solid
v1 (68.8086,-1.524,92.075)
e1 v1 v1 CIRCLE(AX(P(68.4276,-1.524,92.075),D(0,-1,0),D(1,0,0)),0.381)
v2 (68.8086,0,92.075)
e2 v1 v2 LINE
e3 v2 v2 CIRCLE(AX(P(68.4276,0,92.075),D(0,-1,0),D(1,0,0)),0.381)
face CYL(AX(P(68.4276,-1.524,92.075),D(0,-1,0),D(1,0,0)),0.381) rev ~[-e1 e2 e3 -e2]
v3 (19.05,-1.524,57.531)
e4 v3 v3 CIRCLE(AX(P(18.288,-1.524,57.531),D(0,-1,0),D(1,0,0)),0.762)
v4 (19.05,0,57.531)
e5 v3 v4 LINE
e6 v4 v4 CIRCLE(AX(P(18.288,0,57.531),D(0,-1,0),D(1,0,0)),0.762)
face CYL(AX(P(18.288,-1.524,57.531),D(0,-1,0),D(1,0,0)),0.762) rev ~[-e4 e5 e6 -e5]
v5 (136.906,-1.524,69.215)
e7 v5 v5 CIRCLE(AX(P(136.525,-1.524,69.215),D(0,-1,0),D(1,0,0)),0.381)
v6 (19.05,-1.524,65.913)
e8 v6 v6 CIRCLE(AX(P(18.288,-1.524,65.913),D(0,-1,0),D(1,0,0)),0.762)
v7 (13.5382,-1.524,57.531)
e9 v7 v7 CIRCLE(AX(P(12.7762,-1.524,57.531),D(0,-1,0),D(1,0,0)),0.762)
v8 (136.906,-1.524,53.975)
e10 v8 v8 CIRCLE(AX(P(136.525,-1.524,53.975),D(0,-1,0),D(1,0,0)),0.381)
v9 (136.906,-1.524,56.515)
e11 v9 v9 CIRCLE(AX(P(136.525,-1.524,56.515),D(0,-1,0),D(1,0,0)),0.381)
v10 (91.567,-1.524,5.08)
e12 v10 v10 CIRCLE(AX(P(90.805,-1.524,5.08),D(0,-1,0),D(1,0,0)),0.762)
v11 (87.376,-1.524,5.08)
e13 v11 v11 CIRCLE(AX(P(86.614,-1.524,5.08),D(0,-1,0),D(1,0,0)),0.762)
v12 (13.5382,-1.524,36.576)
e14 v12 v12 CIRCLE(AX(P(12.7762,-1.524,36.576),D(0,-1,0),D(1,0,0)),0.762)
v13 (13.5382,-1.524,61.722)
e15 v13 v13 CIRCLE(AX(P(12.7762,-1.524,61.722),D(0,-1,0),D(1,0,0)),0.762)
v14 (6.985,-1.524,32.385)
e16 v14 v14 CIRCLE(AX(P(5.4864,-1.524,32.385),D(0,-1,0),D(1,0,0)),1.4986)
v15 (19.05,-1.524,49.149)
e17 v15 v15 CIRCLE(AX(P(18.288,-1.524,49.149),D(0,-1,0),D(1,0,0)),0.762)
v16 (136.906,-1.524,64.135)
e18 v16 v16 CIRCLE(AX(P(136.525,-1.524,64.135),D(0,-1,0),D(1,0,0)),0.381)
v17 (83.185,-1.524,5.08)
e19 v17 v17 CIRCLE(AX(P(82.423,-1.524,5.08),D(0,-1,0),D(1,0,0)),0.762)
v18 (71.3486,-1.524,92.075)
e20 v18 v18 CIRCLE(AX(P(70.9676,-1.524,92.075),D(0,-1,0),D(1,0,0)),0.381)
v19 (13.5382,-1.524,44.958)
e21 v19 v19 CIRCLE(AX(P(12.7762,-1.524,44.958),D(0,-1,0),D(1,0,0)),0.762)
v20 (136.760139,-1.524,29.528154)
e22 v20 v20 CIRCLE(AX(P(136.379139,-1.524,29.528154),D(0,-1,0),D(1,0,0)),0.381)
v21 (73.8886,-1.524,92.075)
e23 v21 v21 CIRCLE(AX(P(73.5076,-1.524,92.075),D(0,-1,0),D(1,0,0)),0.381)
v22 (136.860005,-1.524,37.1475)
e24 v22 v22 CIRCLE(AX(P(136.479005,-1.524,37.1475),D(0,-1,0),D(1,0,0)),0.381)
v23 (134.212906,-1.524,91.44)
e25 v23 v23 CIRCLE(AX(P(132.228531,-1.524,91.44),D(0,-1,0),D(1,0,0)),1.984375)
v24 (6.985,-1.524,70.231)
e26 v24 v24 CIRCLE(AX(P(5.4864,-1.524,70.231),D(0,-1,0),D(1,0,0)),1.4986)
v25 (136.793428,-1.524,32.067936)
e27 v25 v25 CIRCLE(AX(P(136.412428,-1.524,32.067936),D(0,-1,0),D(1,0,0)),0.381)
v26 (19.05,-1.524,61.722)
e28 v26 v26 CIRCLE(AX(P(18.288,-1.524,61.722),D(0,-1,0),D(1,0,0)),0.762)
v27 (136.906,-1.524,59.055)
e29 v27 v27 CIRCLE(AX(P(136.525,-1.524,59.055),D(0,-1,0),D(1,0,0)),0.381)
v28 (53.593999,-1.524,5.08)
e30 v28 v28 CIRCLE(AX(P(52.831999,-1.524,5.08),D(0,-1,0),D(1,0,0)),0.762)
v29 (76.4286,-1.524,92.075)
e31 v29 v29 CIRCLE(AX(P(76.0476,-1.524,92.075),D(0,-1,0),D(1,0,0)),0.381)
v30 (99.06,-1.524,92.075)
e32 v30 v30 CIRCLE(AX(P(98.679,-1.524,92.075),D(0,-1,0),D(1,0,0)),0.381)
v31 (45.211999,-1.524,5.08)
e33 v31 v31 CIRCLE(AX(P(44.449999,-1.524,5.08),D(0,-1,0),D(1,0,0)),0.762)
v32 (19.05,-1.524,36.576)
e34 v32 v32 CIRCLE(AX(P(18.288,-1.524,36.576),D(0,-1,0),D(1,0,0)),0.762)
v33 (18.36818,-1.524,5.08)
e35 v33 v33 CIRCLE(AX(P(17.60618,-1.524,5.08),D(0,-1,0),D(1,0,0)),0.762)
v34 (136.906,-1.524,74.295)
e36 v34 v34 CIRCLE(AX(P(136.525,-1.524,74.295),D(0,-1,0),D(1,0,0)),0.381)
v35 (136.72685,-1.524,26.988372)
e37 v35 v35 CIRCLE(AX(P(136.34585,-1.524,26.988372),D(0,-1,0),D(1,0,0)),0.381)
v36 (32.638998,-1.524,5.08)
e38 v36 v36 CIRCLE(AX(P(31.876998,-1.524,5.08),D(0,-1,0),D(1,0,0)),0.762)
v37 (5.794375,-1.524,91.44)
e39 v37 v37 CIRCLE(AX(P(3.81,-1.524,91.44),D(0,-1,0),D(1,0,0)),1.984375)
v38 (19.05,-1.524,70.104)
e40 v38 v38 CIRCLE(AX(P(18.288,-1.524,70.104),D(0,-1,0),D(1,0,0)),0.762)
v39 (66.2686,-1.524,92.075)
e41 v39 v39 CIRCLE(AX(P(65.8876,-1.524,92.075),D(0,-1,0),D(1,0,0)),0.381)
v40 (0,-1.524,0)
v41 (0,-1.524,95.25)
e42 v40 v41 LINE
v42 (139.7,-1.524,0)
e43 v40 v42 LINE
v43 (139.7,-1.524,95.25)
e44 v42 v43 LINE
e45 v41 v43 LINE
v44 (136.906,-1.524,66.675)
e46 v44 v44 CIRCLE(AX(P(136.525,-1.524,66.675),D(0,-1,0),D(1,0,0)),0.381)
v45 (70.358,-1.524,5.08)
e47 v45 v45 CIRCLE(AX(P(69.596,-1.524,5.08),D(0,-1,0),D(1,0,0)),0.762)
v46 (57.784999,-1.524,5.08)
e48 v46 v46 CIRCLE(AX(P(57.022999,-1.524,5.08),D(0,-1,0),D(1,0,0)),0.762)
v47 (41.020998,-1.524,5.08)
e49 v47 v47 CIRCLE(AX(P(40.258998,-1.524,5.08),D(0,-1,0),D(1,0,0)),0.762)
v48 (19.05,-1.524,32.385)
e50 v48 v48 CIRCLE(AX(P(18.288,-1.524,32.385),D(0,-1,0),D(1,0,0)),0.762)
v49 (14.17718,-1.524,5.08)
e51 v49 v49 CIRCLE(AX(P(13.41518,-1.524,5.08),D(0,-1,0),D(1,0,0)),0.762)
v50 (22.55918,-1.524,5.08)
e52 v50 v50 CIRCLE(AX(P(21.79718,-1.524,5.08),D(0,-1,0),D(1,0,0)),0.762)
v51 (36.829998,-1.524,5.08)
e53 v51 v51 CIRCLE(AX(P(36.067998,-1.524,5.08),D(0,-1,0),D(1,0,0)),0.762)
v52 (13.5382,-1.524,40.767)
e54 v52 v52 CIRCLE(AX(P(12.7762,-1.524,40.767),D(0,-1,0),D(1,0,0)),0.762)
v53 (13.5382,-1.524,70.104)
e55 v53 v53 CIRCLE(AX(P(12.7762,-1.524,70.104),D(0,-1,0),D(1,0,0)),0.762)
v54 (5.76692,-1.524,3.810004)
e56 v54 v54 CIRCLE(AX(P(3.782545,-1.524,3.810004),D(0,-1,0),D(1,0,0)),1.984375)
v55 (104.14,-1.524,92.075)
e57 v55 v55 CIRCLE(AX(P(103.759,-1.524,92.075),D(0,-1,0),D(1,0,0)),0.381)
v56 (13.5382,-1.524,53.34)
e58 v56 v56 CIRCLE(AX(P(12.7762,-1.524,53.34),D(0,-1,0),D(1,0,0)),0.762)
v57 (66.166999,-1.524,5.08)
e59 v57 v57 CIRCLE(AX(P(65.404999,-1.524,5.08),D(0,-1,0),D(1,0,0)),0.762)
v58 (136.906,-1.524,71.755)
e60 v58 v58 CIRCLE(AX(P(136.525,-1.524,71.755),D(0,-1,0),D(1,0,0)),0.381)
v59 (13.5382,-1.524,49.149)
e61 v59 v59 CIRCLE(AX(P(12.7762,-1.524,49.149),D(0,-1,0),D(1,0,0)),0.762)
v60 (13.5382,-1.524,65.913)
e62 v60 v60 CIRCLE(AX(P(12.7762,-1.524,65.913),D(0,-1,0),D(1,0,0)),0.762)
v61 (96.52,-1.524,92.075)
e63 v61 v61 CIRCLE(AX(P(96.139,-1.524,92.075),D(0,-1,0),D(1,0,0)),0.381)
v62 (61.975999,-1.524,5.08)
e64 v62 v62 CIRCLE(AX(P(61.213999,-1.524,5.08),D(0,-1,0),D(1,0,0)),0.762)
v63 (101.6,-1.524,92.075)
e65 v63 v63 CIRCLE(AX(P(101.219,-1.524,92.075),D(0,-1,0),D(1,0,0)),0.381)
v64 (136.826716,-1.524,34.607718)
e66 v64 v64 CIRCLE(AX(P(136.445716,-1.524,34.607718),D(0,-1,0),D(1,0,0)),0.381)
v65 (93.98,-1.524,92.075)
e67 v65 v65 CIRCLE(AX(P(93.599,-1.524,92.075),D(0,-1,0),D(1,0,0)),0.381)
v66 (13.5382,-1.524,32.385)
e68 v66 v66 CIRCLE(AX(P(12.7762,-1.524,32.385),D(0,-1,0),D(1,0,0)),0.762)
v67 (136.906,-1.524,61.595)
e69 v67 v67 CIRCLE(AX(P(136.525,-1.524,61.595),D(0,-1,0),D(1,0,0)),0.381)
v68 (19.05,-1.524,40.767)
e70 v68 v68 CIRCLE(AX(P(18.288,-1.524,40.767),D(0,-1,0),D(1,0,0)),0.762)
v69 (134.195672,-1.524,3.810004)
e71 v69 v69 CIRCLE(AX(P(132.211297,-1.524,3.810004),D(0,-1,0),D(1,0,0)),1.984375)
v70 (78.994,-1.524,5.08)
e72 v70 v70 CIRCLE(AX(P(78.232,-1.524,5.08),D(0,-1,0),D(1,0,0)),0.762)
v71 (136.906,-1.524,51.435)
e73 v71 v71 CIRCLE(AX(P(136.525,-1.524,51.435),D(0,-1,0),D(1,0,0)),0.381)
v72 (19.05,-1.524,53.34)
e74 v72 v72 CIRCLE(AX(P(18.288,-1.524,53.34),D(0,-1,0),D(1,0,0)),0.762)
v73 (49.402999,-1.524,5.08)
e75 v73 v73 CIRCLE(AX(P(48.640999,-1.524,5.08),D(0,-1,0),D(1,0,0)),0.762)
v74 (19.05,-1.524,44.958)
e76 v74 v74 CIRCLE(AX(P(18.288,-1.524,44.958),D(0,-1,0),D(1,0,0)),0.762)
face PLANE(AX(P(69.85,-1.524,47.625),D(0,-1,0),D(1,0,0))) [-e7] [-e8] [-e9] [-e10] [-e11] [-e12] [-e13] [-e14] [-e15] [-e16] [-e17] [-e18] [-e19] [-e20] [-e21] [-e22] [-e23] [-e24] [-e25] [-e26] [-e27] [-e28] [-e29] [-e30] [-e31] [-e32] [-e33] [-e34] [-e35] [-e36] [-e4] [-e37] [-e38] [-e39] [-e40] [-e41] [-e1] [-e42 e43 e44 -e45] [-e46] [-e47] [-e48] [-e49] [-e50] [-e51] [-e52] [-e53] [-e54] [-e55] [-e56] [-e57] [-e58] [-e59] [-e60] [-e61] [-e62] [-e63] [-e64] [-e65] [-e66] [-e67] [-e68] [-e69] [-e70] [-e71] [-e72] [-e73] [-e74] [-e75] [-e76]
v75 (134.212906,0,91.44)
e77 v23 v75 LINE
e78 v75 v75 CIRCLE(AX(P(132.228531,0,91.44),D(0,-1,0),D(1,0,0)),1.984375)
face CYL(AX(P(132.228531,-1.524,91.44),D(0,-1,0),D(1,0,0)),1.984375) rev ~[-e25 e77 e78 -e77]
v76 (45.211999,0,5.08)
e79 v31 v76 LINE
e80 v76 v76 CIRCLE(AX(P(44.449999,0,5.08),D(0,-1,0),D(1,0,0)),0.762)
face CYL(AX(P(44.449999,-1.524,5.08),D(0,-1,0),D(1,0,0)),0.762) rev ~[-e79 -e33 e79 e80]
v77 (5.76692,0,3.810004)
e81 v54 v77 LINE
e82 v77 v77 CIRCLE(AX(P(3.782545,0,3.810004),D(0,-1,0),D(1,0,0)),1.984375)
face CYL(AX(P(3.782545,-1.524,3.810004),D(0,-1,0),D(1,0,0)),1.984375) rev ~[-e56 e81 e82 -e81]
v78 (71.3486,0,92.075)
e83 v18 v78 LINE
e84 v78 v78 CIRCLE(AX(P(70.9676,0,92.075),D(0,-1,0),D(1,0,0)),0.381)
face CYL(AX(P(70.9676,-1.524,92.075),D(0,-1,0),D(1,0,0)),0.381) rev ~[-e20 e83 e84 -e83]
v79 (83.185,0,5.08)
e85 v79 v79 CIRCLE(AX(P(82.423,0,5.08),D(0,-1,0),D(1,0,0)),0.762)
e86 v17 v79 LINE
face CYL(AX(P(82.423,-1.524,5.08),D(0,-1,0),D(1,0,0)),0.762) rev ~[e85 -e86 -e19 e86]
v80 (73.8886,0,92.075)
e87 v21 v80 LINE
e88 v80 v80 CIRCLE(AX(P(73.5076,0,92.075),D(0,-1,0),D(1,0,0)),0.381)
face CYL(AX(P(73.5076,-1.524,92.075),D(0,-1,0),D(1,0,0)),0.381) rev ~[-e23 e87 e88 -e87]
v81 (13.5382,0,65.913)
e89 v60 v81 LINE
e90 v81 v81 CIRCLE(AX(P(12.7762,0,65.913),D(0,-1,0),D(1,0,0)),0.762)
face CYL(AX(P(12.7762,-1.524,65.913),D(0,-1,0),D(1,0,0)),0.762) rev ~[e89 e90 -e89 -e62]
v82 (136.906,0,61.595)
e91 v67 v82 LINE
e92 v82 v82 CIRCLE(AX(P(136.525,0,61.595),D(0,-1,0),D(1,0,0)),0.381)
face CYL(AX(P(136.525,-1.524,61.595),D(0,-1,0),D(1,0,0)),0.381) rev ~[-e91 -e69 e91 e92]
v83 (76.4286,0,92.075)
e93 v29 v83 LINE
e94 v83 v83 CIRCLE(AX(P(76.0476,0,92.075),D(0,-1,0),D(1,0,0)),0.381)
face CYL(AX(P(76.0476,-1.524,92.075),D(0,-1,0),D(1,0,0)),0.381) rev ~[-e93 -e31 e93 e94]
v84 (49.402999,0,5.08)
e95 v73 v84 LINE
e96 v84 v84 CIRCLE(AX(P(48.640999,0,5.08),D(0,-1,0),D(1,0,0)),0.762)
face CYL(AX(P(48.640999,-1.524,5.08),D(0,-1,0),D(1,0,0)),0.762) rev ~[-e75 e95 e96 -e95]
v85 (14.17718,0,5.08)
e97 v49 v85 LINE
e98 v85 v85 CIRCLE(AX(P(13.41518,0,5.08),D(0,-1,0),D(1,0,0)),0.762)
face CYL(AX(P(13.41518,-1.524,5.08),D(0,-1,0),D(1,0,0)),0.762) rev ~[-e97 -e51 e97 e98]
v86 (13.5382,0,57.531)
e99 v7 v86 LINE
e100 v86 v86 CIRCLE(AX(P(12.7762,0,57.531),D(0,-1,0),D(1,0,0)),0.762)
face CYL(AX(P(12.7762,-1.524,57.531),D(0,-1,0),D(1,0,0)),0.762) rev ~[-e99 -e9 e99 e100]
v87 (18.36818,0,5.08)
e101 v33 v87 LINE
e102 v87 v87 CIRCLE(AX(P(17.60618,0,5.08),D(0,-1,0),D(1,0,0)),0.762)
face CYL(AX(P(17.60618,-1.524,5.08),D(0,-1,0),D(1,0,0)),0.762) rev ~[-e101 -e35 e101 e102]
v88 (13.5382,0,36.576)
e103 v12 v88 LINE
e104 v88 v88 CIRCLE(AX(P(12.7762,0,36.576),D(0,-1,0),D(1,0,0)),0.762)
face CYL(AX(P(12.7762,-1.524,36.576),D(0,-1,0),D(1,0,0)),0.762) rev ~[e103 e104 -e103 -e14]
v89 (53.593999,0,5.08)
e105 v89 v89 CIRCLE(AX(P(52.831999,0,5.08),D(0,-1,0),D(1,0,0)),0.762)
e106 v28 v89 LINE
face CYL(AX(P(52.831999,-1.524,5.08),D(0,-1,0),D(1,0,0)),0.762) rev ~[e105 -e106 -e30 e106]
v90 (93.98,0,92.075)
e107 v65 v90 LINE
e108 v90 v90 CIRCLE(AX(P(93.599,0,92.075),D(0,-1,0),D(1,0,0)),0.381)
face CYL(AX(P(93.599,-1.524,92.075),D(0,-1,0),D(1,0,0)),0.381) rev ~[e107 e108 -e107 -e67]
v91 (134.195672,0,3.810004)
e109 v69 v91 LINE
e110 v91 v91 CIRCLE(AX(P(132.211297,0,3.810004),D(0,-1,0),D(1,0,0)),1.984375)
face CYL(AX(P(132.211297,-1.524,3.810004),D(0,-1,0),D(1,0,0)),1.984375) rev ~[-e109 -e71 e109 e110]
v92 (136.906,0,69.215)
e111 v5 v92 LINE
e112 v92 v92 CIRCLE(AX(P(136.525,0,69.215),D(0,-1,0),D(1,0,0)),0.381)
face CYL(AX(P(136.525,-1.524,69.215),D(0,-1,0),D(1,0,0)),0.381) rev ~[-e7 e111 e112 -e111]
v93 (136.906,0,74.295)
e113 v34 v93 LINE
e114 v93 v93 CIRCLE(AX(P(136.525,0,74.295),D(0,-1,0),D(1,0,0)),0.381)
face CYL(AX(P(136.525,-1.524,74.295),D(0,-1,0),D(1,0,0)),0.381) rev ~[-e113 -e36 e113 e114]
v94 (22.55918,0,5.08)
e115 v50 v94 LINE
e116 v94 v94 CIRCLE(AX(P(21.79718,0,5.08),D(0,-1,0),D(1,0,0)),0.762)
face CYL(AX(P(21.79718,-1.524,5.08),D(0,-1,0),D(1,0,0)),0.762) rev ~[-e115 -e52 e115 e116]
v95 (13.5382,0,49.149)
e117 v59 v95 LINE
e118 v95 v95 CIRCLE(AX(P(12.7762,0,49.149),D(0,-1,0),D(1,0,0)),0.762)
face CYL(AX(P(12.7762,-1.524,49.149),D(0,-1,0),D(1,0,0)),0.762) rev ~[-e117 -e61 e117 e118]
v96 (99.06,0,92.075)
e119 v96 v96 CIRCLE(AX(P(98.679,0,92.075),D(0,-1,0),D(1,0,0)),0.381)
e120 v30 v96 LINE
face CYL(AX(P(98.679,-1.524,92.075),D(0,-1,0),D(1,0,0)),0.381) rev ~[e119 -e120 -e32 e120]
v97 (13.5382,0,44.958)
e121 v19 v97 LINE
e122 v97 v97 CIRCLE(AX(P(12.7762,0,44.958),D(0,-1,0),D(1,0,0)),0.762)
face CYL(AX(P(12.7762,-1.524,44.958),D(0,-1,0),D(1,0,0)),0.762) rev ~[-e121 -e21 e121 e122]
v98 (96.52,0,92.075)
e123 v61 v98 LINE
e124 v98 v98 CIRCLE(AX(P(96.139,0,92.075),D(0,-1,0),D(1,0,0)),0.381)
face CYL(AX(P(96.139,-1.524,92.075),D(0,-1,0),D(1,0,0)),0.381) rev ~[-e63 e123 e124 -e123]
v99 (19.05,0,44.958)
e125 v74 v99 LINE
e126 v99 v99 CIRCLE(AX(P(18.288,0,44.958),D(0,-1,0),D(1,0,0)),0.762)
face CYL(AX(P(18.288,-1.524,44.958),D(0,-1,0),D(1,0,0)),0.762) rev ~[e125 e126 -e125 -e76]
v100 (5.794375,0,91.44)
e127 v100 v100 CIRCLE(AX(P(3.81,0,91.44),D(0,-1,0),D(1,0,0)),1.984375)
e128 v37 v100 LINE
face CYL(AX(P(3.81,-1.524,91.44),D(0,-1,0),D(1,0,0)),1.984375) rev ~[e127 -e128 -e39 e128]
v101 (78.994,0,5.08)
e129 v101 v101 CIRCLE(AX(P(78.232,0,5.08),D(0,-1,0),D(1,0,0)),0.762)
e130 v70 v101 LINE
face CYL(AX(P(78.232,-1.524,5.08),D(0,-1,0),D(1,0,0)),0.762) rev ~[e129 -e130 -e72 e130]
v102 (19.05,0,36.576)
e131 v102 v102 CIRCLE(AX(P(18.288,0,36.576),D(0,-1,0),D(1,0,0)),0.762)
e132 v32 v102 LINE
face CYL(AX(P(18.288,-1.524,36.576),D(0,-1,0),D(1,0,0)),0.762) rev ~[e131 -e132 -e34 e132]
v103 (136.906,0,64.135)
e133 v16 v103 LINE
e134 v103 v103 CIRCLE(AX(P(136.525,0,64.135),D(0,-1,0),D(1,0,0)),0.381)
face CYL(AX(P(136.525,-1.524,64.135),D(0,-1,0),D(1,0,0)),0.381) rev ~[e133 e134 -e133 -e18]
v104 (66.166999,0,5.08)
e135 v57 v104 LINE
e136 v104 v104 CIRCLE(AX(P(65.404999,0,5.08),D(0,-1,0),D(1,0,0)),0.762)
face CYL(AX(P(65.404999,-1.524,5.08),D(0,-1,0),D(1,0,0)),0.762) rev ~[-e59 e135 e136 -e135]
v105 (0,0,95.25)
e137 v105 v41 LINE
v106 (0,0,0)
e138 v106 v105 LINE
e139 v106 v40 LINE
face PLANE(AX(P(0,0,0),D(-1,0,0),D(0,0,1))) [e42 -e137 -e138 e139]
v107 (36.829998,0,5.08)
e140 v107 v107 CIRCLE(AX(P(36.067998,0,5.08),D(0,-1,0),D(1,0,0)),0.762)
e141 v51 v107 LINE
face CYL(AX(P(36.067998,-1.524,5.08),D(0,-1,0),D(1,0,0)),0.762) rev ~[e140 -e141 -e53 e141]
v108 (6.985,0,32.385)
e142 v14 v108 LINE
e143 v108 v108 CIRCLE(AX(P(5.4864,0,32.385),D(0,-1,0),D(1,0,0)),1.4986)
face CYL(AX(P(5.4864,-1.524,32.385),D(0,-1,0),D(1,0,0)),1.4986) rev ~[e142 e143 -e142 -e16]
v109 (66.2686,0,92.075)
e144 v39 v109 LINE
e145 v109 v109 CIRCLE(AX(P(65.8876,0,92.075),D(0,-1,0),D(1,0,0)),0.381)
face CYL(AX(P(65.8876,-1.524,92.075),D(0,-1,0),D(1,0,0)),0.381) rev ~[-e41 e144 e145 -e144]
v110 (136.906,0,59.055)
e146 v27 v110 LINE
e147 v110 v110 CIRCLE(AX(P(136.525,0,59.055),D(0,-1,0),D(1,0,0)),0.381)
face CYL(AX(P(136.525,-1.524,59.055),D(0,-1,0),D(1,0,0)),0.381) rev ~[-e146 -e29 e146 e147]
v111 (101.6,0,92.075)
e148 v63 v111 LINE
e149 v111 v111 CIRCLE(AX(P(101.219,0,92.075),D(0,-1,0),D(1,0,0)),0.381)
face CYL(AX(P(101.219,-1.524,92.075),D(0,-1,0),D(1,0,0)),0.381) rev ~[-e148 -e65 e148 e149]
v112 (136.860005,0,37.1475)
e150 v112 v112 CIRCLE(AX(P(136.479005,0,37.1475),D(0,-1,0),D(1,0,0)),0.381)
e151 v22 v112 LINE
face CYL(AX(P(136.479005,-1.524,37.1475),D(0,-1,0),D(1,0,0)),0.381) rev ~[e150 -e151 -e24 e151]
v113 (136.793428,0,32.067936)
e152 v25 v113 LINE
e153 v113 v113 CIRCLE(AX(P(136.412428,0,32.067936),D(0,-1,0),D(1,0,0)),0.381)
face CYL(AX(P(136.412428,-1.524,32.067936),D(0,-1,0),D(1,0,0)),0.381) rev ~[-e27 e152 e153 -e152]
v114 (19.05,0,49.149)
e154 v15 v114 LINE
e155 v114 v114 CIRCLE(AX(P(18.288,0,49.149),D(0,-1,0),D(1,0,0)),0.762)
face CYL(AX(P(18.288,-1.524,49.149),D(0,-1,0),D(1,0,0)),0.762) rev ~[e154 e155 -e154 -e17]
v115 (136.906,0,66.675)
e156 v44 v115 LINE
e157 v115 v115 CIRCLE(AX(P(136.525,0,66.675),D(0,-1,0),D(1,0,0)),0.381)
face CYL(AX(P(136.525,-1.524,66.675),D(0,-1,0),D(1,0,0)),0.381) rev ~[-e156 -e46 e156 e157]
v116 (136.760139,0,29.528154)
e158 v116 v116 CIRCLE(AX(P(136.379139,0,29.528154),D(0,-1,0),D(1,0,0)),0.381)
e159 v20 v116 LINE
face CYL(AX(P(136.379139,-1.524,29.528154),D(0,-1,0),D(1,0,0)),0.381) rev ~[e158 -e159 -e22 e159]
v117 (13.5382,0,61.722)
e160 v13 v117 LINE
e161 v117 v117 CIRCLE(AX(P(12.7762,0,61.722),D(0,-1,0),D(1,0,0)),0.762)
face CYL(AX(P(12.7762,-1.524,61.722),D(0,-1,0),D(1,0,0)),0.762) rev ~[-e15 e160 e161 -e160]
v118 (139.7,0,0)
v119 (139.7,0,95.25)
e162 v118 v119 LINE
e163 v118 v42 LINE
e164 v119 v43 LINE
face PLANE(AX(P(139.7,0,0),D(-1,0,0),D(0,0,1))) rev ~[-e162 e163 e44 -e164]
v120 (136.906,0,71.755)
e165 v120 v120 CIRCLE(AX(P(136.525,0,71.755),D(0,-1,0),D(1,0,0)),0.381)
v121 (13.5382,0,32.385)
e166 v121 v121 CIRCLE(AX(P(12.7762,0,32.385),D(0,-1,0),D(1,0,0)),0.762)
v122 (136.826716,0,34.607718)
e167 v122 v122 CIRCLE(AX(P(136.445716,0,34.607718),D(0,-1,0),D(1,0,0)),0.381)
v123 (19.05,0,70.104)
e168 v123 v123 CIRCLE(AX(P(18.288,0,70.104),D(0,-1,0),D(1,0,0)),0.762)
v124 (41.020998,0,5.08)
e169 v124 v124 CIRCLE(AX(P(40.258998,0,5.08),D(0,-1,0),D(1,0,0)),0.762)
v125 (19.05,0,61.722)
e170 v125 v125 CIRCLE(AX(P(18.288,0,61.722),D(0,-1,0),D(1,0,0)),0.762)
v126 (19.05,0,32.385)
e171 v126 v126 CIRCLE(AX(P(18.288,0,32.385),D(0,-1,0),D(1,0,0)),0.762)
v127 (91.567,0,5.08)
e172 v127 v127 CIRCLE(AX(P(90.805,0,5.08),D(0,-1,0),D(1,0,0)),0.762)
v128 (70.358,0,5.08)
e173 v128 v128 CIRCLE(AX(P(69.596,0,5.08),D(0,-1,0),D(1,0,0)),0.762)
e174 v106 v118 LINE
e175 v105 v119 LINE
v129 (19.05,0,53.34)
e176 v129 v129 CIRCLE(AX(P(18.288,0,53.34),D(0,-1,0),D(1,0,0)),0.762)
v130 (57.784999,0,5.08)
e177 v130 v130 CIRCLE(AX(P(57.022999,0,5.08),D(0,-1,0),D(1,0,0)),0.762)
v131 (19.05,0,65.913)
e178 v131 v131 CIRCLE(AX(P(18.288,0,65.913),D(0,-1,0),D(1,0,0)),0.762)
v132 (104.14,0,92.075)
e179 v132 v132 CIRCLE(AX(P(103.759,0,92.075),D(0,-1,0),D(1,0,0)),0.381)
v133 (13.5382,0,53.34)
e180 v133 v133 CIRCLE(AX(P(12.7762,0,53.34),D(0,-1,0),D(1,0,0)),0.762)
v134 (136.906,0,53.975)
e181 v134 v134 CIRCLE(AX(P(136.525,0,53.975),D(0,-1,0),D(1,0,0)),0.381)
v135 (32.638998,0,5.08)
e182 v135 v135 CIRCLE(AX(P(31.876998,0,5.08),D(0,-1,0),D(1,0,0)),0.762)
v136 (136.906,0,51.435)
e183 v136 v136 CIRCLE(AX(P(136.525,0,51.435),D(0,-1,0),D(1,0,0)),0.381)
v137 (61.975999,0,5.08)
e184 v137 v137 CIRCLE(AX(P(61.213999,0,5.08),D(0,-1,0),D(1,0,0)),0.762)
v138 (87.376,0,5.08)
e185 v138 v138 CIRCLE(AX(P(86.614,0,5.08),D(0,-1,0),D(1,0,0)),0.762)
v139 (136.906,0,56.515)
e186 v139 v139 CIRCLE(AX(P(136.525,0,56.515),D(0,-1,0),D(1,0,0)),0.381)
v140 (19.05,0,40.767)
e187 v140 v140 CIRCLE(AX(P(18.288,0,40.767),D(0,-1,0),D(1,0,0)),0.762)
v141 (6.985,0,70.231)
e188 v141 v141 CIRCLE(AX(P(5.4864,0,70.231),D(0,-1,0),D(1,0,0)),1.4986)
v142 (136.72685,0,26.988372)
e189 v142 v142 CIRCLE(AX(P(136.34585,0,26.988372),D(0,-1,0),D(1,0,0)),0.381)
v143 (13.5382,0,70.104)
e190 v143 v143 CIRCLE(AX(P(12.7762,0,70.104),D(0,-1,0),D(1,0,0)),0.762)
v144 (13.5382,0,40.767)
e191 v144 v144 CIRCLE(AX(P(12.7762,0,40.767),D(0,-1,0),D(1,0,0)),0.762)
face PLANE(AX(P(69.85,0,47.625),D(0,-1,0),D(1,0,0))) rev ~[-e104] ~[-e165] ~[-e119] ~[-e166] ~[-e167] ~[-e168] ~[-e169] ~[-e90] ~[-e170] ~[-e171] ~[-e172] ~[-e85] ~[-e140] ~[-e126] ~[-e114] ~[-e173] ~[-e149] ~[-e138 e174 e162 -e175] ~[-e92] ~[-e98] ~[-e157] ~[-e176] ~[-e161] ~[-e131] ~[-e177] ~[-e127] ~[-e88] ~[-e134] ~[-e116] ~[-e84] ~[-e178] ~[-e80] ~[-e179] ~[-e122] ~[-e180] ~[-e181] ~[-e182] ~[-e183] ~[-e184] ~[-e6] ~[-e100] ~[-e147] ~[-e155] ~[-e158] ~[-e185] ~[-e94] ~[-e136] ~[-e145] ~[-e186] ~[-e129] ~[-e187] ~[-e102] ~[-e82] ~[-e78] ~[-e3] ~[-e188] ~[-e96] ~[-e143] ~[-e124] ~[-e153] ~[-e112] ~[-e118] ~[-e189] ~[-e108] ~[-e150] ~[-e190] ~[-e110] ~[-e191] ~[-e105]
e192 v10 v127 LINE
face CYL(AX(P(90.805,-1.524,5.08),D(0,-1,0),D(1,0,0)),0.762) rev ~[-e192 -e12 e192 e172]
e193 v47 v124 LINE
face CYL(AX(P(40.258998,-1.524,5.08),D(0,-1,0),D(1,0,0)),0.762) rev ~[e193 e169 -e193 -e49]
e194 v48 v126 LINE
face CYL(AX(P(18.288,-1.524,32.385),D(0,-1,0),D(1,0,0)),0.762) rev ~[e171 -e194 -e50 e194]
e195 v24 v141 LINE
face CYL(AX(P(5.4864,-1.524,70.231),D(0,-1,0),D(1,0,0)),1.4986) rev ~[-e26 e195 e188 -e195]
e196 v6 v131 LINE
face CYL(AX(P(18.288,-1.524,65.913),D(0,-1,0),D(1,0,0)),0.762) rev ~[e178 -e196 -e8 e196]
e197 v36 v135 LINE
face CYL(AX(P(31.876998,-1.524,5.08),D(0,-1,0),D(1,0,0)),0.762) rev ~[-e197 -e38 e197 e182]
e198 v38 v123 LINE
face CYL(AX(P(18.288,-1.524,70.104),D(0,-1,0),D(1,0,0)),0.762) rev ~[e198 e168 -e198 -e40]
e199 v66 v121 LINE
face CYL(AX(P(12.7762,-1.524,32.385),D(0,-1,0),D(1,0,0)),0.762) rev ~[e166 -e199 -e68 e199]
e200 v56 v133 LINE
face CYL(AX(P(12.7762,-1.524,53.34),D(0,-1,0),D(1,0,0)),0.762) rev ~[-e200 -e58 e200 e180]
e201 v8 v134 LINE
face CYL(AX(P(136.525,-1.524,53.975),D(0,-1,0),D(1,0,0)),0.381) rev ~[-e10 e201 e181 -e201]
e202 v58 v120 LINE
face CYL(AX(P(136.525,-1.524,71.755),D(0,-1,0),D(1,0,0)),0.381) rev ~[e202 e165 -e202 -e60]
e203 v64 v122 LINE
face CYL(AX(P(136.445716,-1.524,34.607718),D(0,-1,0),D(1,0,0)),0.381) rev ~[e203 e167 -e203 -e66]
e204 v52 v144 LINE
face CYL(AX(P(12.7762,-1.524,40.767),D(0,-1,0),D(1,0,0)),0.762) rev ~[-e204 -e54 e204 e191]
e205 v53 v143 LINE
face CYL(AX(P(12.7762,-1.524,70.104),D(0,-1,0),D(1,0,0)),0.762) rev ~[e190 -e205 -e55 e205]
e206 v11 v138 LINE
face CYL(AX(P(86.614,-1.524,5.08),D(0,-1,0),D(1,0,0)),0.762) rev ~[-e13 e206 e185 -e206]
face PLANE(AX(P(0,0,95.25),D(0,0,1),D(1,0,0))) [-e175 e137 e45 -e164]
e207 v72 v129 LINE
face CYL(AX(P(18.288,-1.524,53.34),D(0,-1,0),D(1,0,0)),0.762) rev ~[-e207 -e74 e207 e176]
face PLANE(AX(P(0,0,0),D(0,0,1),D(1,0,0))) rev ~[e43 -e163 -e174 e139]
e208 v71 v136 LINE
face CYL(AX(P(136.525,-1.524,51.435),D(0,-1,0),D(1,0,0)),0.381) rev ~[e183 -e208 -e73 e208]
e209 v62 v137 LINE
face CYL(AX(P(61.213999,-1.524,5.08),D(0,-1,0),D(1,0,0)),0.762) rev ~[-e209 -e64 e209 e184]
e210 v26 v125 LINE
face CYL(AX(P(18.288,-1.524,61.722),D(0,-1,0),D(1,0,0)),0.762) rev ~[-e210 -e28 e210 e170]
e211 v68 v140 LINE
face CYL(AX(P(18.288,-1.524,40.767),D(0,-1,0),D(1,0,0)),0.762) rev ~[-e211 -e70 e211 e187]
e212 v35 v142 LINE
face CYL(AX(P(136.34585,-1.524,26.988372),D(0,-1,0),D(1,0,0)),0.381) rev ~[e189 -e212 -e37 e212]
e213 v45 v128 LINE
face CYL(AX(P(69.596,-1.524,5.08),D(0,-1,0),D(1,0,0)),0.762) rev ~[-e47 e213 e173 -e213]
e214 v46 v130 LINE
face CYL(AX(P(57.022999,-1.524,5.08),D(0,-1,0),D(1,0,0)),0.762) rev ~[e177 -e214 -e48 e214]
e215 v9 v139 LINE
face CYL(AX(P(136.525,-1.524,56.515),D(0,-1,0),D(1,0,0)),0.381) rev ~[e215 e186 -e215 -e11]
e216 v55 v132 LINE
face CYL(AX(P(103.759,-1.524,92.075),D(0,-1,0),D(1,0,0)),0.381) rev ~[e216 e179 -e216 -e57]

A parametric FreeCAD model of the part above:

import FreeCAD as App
import Part
import Sketcher
Q = App.Units.Quantity


def add_polygon(sketch, points):
    """Adds a closed chain of lines whose ends are joined by coincident constraints."""
    first, n = sketch.GeometryCount, len(points)
    for a, b in zip(points, points[1:] + points[:1]):
        sketch.addGeometry(Part.LineSegment(App.Vector(*a, 0), App.Vector(*b, 0)), False)
    for i in range(n):
        sketch.addConstraint(Sketcher.Constraint("Coincident", first + i, 2, first + (i + 1) % n, 1))

doc = App.newDocument("Part")
params = doc.addObject("Spreadsheet::Sheet", "Params")
for row, (alias, value) in enumerate([
    ("sketch1_width", "5.5 in"),
    ("sketch1_height", "3.75 in"),
    ("pad1_length", "0.06 in"),
    ("sketch2_diameter", "0.15625 in"),
    ("pocket1_length", "1 in"),
    ("sketch3_diameter", "0.03 in"),
    ("sketch3_diameter2", "0.06 in"),
    ("sketch3_diameter3", "0.118 in"),
], start=1):
    params.set(f"A{row}", alias)
    params.set(f"B{row}", "=" + value)
    params.setAlias(f"B{row}", alias)

body = doc.addObject("PartDesign::Body", "Body")

sketch1 = doc.addObject("Sketcher::SketchObject", "Sketch")
body.addObject(sketch1)
sketch1.AttachmentSupport = (doc.XZ_Plane, [""])
sketch1.MapMode = "FlatFace"
add_polygon(sketch1, [(0, 95), (0, 0), (140, 0), (140, 95)])
sketch1.addConstraint(Sketcher.Constraint("Vertical", 0))
sketch1.addConstraint(Sketcher.Constraint("Horizontal", 1))
sketch1.addConstraint(Sketcher.Constraint("Vertical", 2))
sketch1.addConstraint(Sketcher.Constraint("Horizontal", 3))
sketch1.addConstraint(Sketcher.Constraint("Coincident", 0, 2, -1, 1))
sketch1.addConstraint(Sketcher.Constraint("DistanceX", 1, 1, 1, 2, Q("5.5 in")))
sketch1.addConstraint(Sketcher.Constraint("DistanceY", 0, 2, 0, 1, Q("3.75 in")))
sketch1.setExpression("Constraints[9]", "Params.sketch1_width")
sketch1.setExpression("Constraints[10]", "Params.sketch1_height")
pad1 = doc.addObject("PartDesign::Pad", "Pad")
body.addObject(pad1)
pad1.Profile = sketch1
pad1.setExpression("Length", "Params.pad1_length")

sketch2 = doc.addObject("Sketcher::SketchObject", "Sketch001")
body.addObject(sketch2)
sketch2.AttachmentSupport = (doc.XZ_Plane, [""])
sketch2.MapMode = "FlatFace"
sketch2.AttachmentOffset = App.Placement(App.Vector(0, 0, 0.06 * 25.4), App.Rotation())
sketch2.addGeometry(Part.Circle(App.Vector(3.8, 91.4, 0), App.Vector(0, 0, 1), 2), False)
sketch2.addGeometry(Part.Circle(App.Vector(132.2, 91.4, 0), App.Vector(0, 0, 1), 2), False)
sketch2.addGeometry(Part.Circle(App.Vector(3.8, 3.8, 0), App.Vector(0, 0, 1), 2), False)
sketch2.addGeometry(Part.Circle(App.Vector(132.2, 3.8, 0), App.Vector(0, 0, 1), 2), False)
sketch2.addConstraint(Sketcher.Constraint("Equal", 0, 1))
sketch2.addConstraint(Sketcher.Constraint("Equal", 1, 2))
sketch2.addConstraint(Sketcher.Constraint("Equal", 2, 3))
sketch2.addConstraint(Sketcher.Constraint("Horizontal", 0, 3, 1, 3))
sketch2.addConstraint(Sketcher.Constraint("Horizontal", 2, 3, 3, 3))
sketch2.addConstraint(Sketcher.Constraint("Diameter", 0, Q("0.15625 in")))
sketch2.addConstraint(Sketcher.Constraint("DistanceY", -1, 1, 0, 3, Q("3.6 in")))
sketch2.addConstraint(Sketcher.Constraint("DistanceX", -1, 1, 0, 3, Q("0.15 in")))
sketch2.addConstraint(Sketcher.Constraint("DistanceY", -1, 1, 2, 3, Q("0.1500002 in")))
sketch2.addConstraint(Sketcher.Constraint("DistanceX", -1, 1, 1, 3, Q("132.228531 mm")))
sketch2.addConstraint(Sketcher.Constraint("DistanceX", 2, 3, 3, 3, Q("128.428752 mm")))
sketch2.addConstraint(Sketcher.Constraint("DistanceX", -1, 1, 2, 3, Q("3.782545 mm")))
sketch2.setExpression("Constraints[5]", "Params.sketch2_diameter")
pocket1 = doc.addObject("PartDesign::Pocket", "Pocket")
body.addObject(pocket1)
pocket1.Profile = sketch2
pocket1.setExpression("Length", "Params.pocket1_length")

sketch3 = doc.addObject("Sketcher::SketchObject", "Sketch002")
body.addObject(sketch3)
sketch3.AttachmentSupport = (doc.XZ_Plane, [""])
sketch3.MapMode = "FlatFace"
sketch3.AttachmentOffset = App.Placement(App.Vector(0, 0, 0.06 * 25.4), App.Rotation())
sketch3.addGeometry(Part.Circle(App.Vector(136.53, 74.3, 0), App.Vector(0, 0, 1), 0.38), False)
sketch3.addGeometry(Part.Circle(App.Vector(136.53, 71.75, 0), App.Vector(0, 0, 1), 0.38), False)
sketch3.addGeometry(Part.Circle(App.Vector(136.53, 69.22, 0), App.Vector(0, 0, 1), 0.38), False)
sketch3.addGeometry(Part.Circle(App.Vector(136.53, 66.67, 0), App.Vector(0, 0, 1), 0.38), False)
sketch3.addGeometry(Part.Circle(App.Vector(136.53, 64.14, 0), App.Vector(0, 0, 1), 0.38), False)
sketch3.addGeometry(Part.Circle(App.Vector(136.53, 61.59, 0), App.Vector(0, 0, 1), 0.38), False)
sketch3.addGeometry(Part.Circle(App.Vector(136.53, 59.05, 0), App.Vector(0, 0, 1), 0.38), False)
sketch3.addGeometry(Part.Circle(App.Vector(136.53, 56.52, 0), App.Vector(0, 0, 1), 0.38), False)
sketch3.addGeometry(Part.Circle(App.Vector(136.53, 53.98, 0), App.Vector(0, 0, 1), 0.38), False)
sketch3.addGeometry(Part.Circle(App.Vector(136.53, 51.44, 0), App.Vector(0, 0, 1), 0.38), False)
sketch3.addGeometry(Part.Circle(App.Vector(136.48, 37.15, 0), App.Vector(0, 0, 1), 0.38), False)
sketch3.addGeometry(Part.Circle(App.Vector(136.45, 34.61, 0), App.Vector(0, 0, 1), 0.38), False)
sketch3.addGeometry(Part.Circle(App.Vector(136.41, 32.07, 0), App.Vector(0, 0, 1), 0.38), False)
sketch3.addGeometry(Part.Circle(App.Vector(136.38, 29.53, 0), App.Vector(0, 0, 1), 0.38), False)
sketch3.addGeometry(Part.Circle(App.Vector(136.35, 26.99, 0), App.Vector(0, 0, 1), 0.38), False)
sketch3.addGeometry(Part.Circle(App.Vector(103.76, 92.08, 0), App.Vector(0, 0, 1), 0.38), False)
sketch3.addGeometry(Part.Circle(App.Vector(101.22, 92.08, 0), App.Vector(0, 0, 1), 0.38), False)
sketch3.addGeometry(Part.Circle(App.Vector(98.68, 92.08, 0), App.Vector(0, 0, 1), 0.38), False)
sketch3.addGeometry(Part.Circle(App.Vector(96.14, 92.08, 0), App.Vector(0, 0, 1), 0.38), False)
sketch3.addGeometry(Part.Circle(App.Vector(93.6, 92.08, 0), App.Vector(0, 0, 1), 0.38), False)
sketch3.addGeometry(Part.Circle(App.Vector(76.05, 92.08, 0), App.Vector(0, 0, 1), 0.38), False)
sketch3.addGeometry(Part.Circle(App.Vector(73.51, 92.08, 0), App.Vector(0, 0, 1), 0.38), False)
sketch3.addGeometry(Part.Circle(App.Vector(70.97, 92.08, 0), App.Vector(0, 0, 1), 0.38), False)
sketch3.addGeometry(Part.Circle(App.Vector(68.43, 92.08, 0), App.Vector(0, 0, 1), 0.38), False)
sketch3.addGeometry(Part.Circle(App.Vector(65.89, 92.08, 0), App.Vector(0, 0, 1), 0.38), False)
sketch3.addGeometry(Part.Circle(App.Vector(90.81, 5.08, 0), App.Vector(0, 0, 1), 0.76), False)
sketch3.addGeometry(Part.Circle(App.Vector(86.61, 5.08, 0), App.Vector(0, 0, 1), 0.76), False)
sketch3.addGeometry(Part.Circle(App.Vector(82.42, 5.08, 0), App.Vector(0, 0, 1), 0.76), False)
sketch3.addGeometry(Part.Circle(App.Vector(78.23, 5.08, 0), App.Vector(0, 0, 1), 0.76), False)
sketch3.addGeometry(Part.Circle(App.Vector(69.6, 5.08, 0), App.Vector(0, 0, 1), 0.76), False)
sketch3.addGeometry(Part.Circle(App.Vector(65.4, 5.08, 0), App.Vector(0, 0, 1), 0.76), False)
sketch3.addGeometry(Part.Circle(App.Vector(61.21, 5.08, 0), App.Vector(0, 0, 1), 0.76), False)
sketch3.addGeometry(Part.Circle(App.Vector(57.02, 5.08, 0), App.Vector(0, 0, 1), 0.76), False)
sketch3.addGeometry(Part.Circle(App.Vector(52.83, 5.08, 0), App.Vector(0, 0, 1), 0.76), False)
sketch3.addGeometry(Part.Circle(App.Vector(48.64, 5.08, 0), App.Vector(0, 0, 1), 0.76), False)
sketch3.addGeometry(Part.Circle(App.Vector(44.45, 5.08, 0), App.Vector(0, 0, 1), 0.76), False)
sketch3.addGeometry(Part.Circle(App.Vector(40.26, 5.08, 0), App.Vector(0, 0, 1), 0.76), False)
sketch3.addGeometry(Part.Circle(App.Vector(36.07, 5.08, 0), App.Vector(0, 0, 1), 0.76), False)
sketch3.addGeometry(Part.Circle(App.Vector(31.88, 5.08, 0), App.Vector(0, 0, 1), 0.76), False)
sketch3.addGeometry(Part.Circle(App.Vector(21.8, 5.08, 0), App.Vector(0, 0, 1), 0.76), False)
sketch3.addGeometry(Part.Circle(App.Vector(17.61, 5.08, 0), App.Vector(0, 0, 1), 0.76), False)
sketch3.addGeometry(Part.Circle(App.Vector(13.42, 5.08, 0), App.Vector(0, 0, 1), 0.76), False)
sketch3.addGeometry(Part.Circle(App.Vector(18.29, 32.38, 0), App.Vector(0, 0, 1), 0.76), False)
sketch3.addGeometry(Part.Circle(App.Vector(18.29, 36.58, 0), App.Vector(0, 0, 1), 0.76), False)
sketch3.addGeometry(Part.Circle(App.Vector(18.29, 40.77, 0), App.Vector(0, 0, 1), 0.76), False)
sketch3.addGeometry(Part.Circle(App.Vector(18.29, 44.96, 0), App.Vector(0, 0, 1), 0.76), False)
sketch3.addGeometry(Part.Circle(App.Vector(18.29, 49.15, 0), App.Vector(0, 0, 1), 0.76), False)
sketch3.addGeometry(Part.Circle(App.Vector(18.29, 53.34, 0), App.Vector(0, 0, 1), 0.76), False)
sketch3.addGeometry(Part.Circle(App.Vector(18.29, 57.53, 0), App.Vector(0, 0, 1), 0.76), False)
sketch3.addGeometry(Part.Circle(App.Vector(18.29, 61.72, 0), App.Vector(0, 0, 1), 0.76), False)
sketch3.addGeometry(Part.Circle(App.Vector(18.29, 65.91, 0), App.Vector(0, 0, 1), 0.76), False)
sketch3.addGeometry(Part.Circle(App.Vector(18.29, 70.1, 0), App.Vector(0, 0, 1), 0.76), False)
sketch3.addGeometry(Part.Circle(App.Vector(12.78, 32.38, 0), App.Vector(0, 0, 1), 0.76), False)
sketch3.addGeometry(Part.Circle(App.Vector(12.78, 36.58, 0), App.Vector(0, 0, 1), 0.76), False)
sketch3.addGeometry(Part.Circle(App.Vector(12.78, 40.77, 0), App.Vector(0, 0, 1), 0.76), False)
sketch3.addGeometry(Part.Circle(App.Vector(12.78, 44.96, 0), App.Vector(0, 0, 1), 0.76), False)
sketch3.addGeometry(Part.Circle(App.Vector(12.78, 49.15, 0), App.Vector(0, 0, 1), 0.76), False)
sketch3.addGeometry(Part.Circle(App.Vector(12.78, 53.34, 0), App.Vector(0, 0, 1), 0.76), False)
sketch3.addGeometry(Part.Circle(App.Vector(12.78, 57.53, 0), App.Vector(0, 0, 1), 0.76), False)
sketch3.addGeometry(Part.Circle(App.Vector(12.78, 61.72, 0), App.Vector(0, 0, 1), 0.76), False)
sketch3.addGeometry(Part.Circle(App.Vector(12.78, 65.91, 0), App.Vector(0, 0, 1), 0.76), False)
sketch3.addGeometry(Part.Circle(App.Vector(12.78, 70.1, 0), App.Vector(0, 0, 1), 0.76), False)
sketch3.addGeometry(Part.Circle(App.Vector(5.49, 32.38, 0), App.Vector(0, 0, 1), 1.5), False)
sketch3.addGeometry(Part.Circle(App.Vector(5.49, 70.23, 0), App.Vector(0, 0, 1), 1.5), False)
sketch3.addConstraint(Sketcher.Constraint("Equal", 0, 1))
sketch3.addConstraint(Sketcher.Constraint("Equal", 1, 2))
sketch3.addConstraint(Sketcher.Constraint("Equal", 2, 3))
sketch3.addConstraint(Sketcher.Constraint("Equal", 3, 4))
sketch3.addConstraint(Sketcher.Constraint("Equal", 4, 5))
sketch3.addConstraint(Sketcher.Constraint("Equal", 5, 6))
sketch3.addConstraint(Sketcher.Constraint("Equal", 6, 7))
sketch3.addConstraint(Sketcher.Constraint("Equal", 7, 8))
sketch3.addConstraint(Sketcher.Constraint("Equal", 8, 9))
sketch3.addConstraint(Sketcher.Constraint("Equal", 9, 10))
sketch3.addConstraint(Sketcher.Constraint("Equal", 10, 11))
sketch3.addConstraint(Sketcher.Constraint("Equal", 11, 12))
sketch3.addConstraint(Sketcher.Constraint("Equal", 12, 13))
sketch3.addConstraint(Sketcher.Constraint("Equal", 13, 14))
sketch3.addConstraint(Sketcher.Constraint("Equal", 14, 15))
sketch3.addConstraint(Sketcher.Constraint("Equal", 15, 16))
sketch3.addConstraint(Sketcher.Constraint("Equal", 16, 17))
sketch3.addConstraint(Sketcher.Constraint("Equal", 17, 18))
sketch3.addConstraint(Sketcher.Constraint("Equal", 18, 19))
sketch3.addConstraint(Sketcher.Constraint("Equal", 19, 20))
sketch3.addConstraint(Sketcher.Constraint("Equal", 20, 21))
sketch3.addConstraint(Sketcher.Constraint("Equal", 21, 22))
sketch3.addConstraint(Sketcher.Constraint("Equal", 22, 23))
sketch3.addConstraint(Sketcher.Constraint("Equal", 23, 24))
sketch3.addConstraint(Sketcher.Constraint("Equal", 25, 26))
sketch3.addConstraint(Sketcher.Constraint("Equal", 26, 27))
sketch3.addConstraint(Sketcher.Constraint("Equal", 27, 28))
sketch3.addConstraint(Sketcher.Constraint("Equal", 28, 29))
sketch3.addConstraint(Sketcher.Constraint("Equal", 29, 30))
sketch3.addConstraint(Sketcher.Constraint("Equal", 30, 31))
sketch3.addConstraint(Sketcher.Constraint("Equal", 31, 32))
sketch3.addConstraint(Sketcher.Constraint("Equal", 32, 33))
sketch3.addConstraint(Sketcher.Constraint("Equal", 33, 34))
sketch3.addConstraint(Sketcher.Constraint("Equal", 34, 35))
sketch3.addConstraint(Sketcher.Constraint("Equal", 35, 36))
sketch3.addConstraint(Sketcher.Constraint("Equal", 36, 37))
sketch3.addConstraint(Sketcher.Constraint("Equal", 37, 38))
sketch3.addConstraint(Sketcher.Constraint("Equal", 38, 39))
sketch3.addConstraint(Sketcher.Constraint("Equal", 39, 40))
sketch3.addConstraint(Sketcher.Constraint("Equal", 40, 41))
sketch3.addConstraint(Sketcher.Constraint("Equal", 41, 42))
sketch3.addConstraint(Sketcher.Constraint("Equal", 42, 43))
sketch3.addConstraint(Sketcher.Constraint("Equal", 43, 44))
sketch3.addConstraint(Sketcher.Constraint("Equal", 44, 45))
sketch3.addConstraint(Sketcher.Constraint("Equal", 45, 46))
sketch3.addConstraint(Sketcher.Constraint("Equal", 46, 47))
sketch3.addConstraint(Sketcher.Constraint("Equal", 47, 48))
sketch3.addConstraint(Sketcher.Constraint("Equal", 48, 49))
sketch3.addConstraint(Sketcher.Constraint("Equal", 49, 50))
sketch3.addConstraint(Sketcher.Constraint("Equal", 50, 51))
sketch3.addConstraint(Sketcher.Constraint("Equal", 51, 52))
sketch3.addConstraint(Sketcher.Constraint("Equal", 52, 53))
sketch3.addConstraint(Sketcher.Constraint("Equal", 53, 54))
sketch3.addConstraint(Sketcher.Constraint("Equal", 54, 55))
sketch3.addConstraint(Sketcher.Constraint("Equal", 55, 56))
sketch3.addConstraint(Sketcher.Constraint("Equal", 56, 57))
sketch3.addConstraint(Sketcher.Constraint("Equal", 57, 58))
sketch3.addConstraint(Sketcher.Constraint("Equal", 58, 59))
sketch3.addConstraint(Sketcher.Constraint("Equal", 59, 60))
sketch3.addConstraint(Sketcher.Constraint("Equal", 60, 61))
sketch3.addConstraint(Sketcher.Constraint("Equal", 62, 63))
sketch3.addConstraint(Sketcher.Constraint("Horizontal", 15, 3, 16, 3))
sketch3.addConstraint(Sketcher.Constraint("Horizontal", 16, 3, 17, 3))
sketch3.addConstraint(Sketcher.Constraint("Horizontal", 17, 3, 18, 3))
sketch3.addConstraint(Sketcher.Constraint("Horizontal", 18, 3, 19, 3))
sketch3.addConstraint(Sketcher.Constraint("Horizontal", 19, 3, 20, 3))
sketch3.addConstraint(Sketcher.Constraint("Horizontal", 20, 3, 21, 3))
sketch3.addConstraint(Sketcher.Constraint("Horizontal", 21, 3, 22, 3))
sketch3.addConstraint(Sketcher.Constraint("Horizontal", 22, 3, 23, 3))
sketch3.addConstraint(Sketcher.Constraint("Horizontal", 23, 3, 24, 3))
sketch3.addConstraint(Sketcher.Constraint("Horizontal", 25, 3, 26, 3))
sketch3.addConstraint(Sketcher.Constraint("Horizontal", 26, 3, 27, 3))
sketch3.addConstraint(Sketcher.Constraint("Horizontal", 27, 3, 28, 3))
sketch3.addConstraint(Sketcher.Constraint("Horizontal", 28, 3, 29, 3))
sketch3.addConstraint(Sketcher.Constraint("Horizontal", 29, 3, 30, 3))
sketch3.addConstraint(Sketcher.Constraint("Horizontal", 30, 3, 31, 3))
sketch3.addConstraint(Sketcher.Constraint("Horizontal", 31, 3, 32, 3))
sketch3.addConstraint(Sketcher.Constraint("Horizontal", 32, 3, 33, 3))
sketch3.addConstraint(Sketcher.Constraint("Horizontal", 33, 3, 34, 3))
sketch3.addConstraint(Sketcher.Constraint("Horizontal", 34, 3, 35, 3))
sketch3.addConstraint(Sketcher.Constraint("Horizontal", 35, 3, 36, 3))
sketch3.addConstraint(Sketcher.Constraint("Horizontal", 36, 3, 37, 3))
sketch3.addConstraint(Sketcher.Constraint("Horizontal", 37, 3, 38, 3))
sketch3.addConstraint(Sketcher.Constraint("Horizontal", 38, 3, 39, 3))
sketch3.addConstraint(Sketcher.Constraint("Horizontal", 39, 3, 40, 3))
sketch3.addConstraint(Sketcher.Constraint("Horizontal", 40, 3, 41, 3))
sketch3.addConstraint(Sketcher.Constraint("Horizontal", 42, 3, 52, 3))
sketch3.addConstraint(Sketcher.Constraint("Horizontal", 43, 3, 53, 3))
sketch3.addConstraint(Sketcher.Constraint("Horizontal", 44, 3, 54, 3))
sketch3.addConstraint(Sketcher.Constraint("Horizontal", 45, 3, 55, 3))
sketch3.addConstraint(Sketcher.Constraint("Horizontal", 46, 3, 56, 3))
sketch3.addConstraint(Sketcher.Constraint("Horizontal", 47, 3, 57, 3))
sketch3.addConstraint(Sketcher.Constraint("Horizontal", 48, 3, 58, 3))
sketch3.addConstraint(Sketcher.Constraint("Horizontal", 49, 3, 59, 3))
sketch3.addConstraint(Sketcher.Constraint("Horizontal", 50, 3, 60, 3))
sketch3.addConstraint(Sketcher.Constraint("Horizontal", 51, 3, 61, 3))
sketch3.addConstraint(Sketcher.Constraint("Horizontal", 52, 3, 62, 3))
sketch3.addConstraint(Sketcher.Constraint("Vertical", 0, 3, 1, 3))
sketch3.addConstraint(Sketcher.Constraint("Vertical", 1, 3, 2, 3))
sketch3.addConstraint(Sketcher.Constraint("Vertical", 2, 3, 3, 3))
sketch3.addConstraint(Sketcher.Constraint("Vertical", 3, 3, 4, 3))
sketch3.addConstraint(Sketcher.Constraint("Vertical", 4, 3, 5, 3))
sketch3.addConstraint(Sketcher.Constraint("Vertical", 5, 3, 6, 3))
sketch3.addConstraint(Sketcher.Constraint("Vertical", 6, 3, 7, 3))
sketch3.addConstraint(Sketcher.Constraint("Vertical", 7, 3, 8, 3))
sketch3.addConstraint(Sketcher.Constraint("Vertical", 8, 3, 9, 3))
sketch3.addConstraint(Sketcher.Constraint("Vertical", 42, 3, 43, 3))
sketch3.addConstraint(Sketcher.Constraint("Vertical", 43, 3, 44, 3))
sketch3.addConstraint(Sketcher.Constraint("Vertical", 44, 3, 45, 3))
sketch3.addConstraint(Sketcher.Constraint("Vertical", 45, 3, 46, 3))
sketch3.addConstraint(Sketcher.Constraint("Vertical", 46, 3, 47, 3))
sketch3.addConstraint(Sketcher.Constraint("Vertical", 47, 3, 48, 3))
sketch3.addConstraint(Sketcher.Constraint("Vertical", 48, 3, 49, 3))
sketch3.addConstraint(Sketcher.Constraint("Vertical", 49, 3, 50, 3))
sketch3.addConstraint(Sketcher.Constraint("Vertical", 50, 3, 51, 3))
sketch3.addConstraint(Sketcher.Constraint("Vertical", 52, 3, 53, 3))
sketch3.addConstraint(Sketcher.Constraint("Vertical", 53, 3, 54, 3))
sketch3.addConstraint(Sketcher.Constraint("Vertical", 54, 3, 55, 3))
sketch3.addConstraint(Sketcher.Constraint("Vertical", 55, 3, 56, 3))
sketch3.addConstraint(Sketcher.Constraint("Vertical", 56, 3, 57, 3))
sketch3.addConstraint(Sketcher.Constraint("Vertical", 57, 3, 58, 3))
sketch3.addConstraint(Sketcher.Constraint("Vertical", 58, 3, 59, 3))
sketch3.addConstraint(Sketcher.Constraint("Vertical", 59, 3, 60, 3))
sketch3.addConstraint(Sketcher.Constraint("Vertical", 60, 3, 61, 3))
sketch3.addConstraint(Sketcher.Constraint("Vertical", 62, 3, 63, 3))
sketch3.addConstraint(Sketcher.Constraint("Diameter", 0, Q("0.03 in")))
sketch3.addConstraint(Sketcher.Constraint("Diameter", 25, Q("0.06 in")))
sketch3.addConstraint(Sketcher.Constraint("Diameter", 62, Q("0.118 in")))
sketch3.addConstraint(Sketcher.Constraint("DistanceY", -1, 1, 25, 3, Q("0.2 in")))
sketch3.addConstraint(Sketcher.Constraint("DistanceY", -1, 1, 47, 3, Q("2.1 in")))
sketch3.addConstraint(Sketcher.Constraint("DistanceX", -1, 1, 26, 3, Q("3.41 in")))
sketch3.addConstraint(Sketcher.Constraint("DistanceX", -1, 1, 28, 3, Q("3.08 in")))
sketch3.addConstraint(Sketcher.Constraint("DistanceX", -1, 1, 29, 3, Q("2.74 in")))
sketch3.addConstraint(Sketcher.Constraint("DistanceX", -1, 1, 31, 3, Q("2.41 in")))
sketch3.addConstraint(Sketcher.Constraint("DistanceX", -1, 1, 33, 3, Q("2.08 in")))
sketch3.addConstraint(Sketcher.Constraint("DistanceX", -1, 1, 35, 3, Q("1.75 in")))
sketch3.addConstraint(Sketcher.Constraint("DistanceX", -1, 1, 37, 3, Q("1.4199999 in")))
sketch3.addConstraint(Sketcher.Constraint("DistanceX", -1, 1, 42, 3, Q("0.72 in")))
sketch3.addConstraint(Sketcher.Constraint("DistanceY", -1, 1, 43, 3, Q("1.44 in")))
sketch3.addConstraint(Sketcher.Constraint("DistanceY", -1, 1, 45, 3, Q("1.77 in")))
sketch3.addConstraint(Sketcher.Constraint("DistanceY", -1, 1, 49, 3, Q("2.43 in")))
sketch3.addConstraint(Sketcher.Constraint("DistanceY", -1, 1, 51, 3, Q("2.76 in")))
sketch3.addConstraint(Sketcher.Constraint("DistanceX", -1, 1, 0, 3, Q("5.375 in")))
sketch3.addConstraint(Sketcher.Constraint("DistanceY", -1, 1, 0, 3, Q("2.925 in")))
sketch3.addConstraint(Sketcher.Constraint("DistanceY", -1, 1, 1, 3, Q("2.825 in")))
sketch3.addConstraint(Sketcher.Constraint("DistanceY", -1, 1, 2, 3, Q("2.725 in")))
sketch3.addConstraint(Sketcher.Constraint("DistanceY", -1, 1, 3, 3, Q("2.625 in")))
sketch3.addConstraint(Sketcher.Constraint("DistanceY", -1, 1, 4, 3, Q("2.525 in")))
sketch3.addConstraint(Sketcher.Constraint("DistanceY", -1, 1, 5, 3, Q("2.425 in")))
sketch3.addConstraint(Sketcher.Constraint("DistanceY", -1, 1, 6, 3, Q("2.325 in")))
sketch3.addConstraint(Sketcher.Constraint("DistanceY", -1, 1, 7, 3, Q("2.225 in")))
sketch3.addConstraint(Sketcher.Constraint("DistanceY", -1, 1, 8, 3, Q("2.125 in")))
sketch3.addConstraint(Sketcher.Constraint("DistanceY", -1, 1, 9, 3, Q("2.025 in")))
sketch3.addConstraint(Sketcher.Constraint("DistanceX", -1, 1, 15, 3, Q("4.085 in")))
sketch3.addConstraint(Sketcher.Constraint("DistanceY", -1, 1, 15, 3, Q("3.625 in")))
sketch3.addConstraint(Sketcher.Constraint("DistanceX", -1, 1, 16, 3, Q("3.985 in")))
sketch3.addConstraint(Sketcher.Constraint("DistanceX", -1, 1, 17, 3, Q("3.885 in")))
sketch3.addConstraint(Sketcher.Constraint("DistanceX", -1, 1, 18, 3, Q("3.785 in")))
sketch3.addConstraint(Sketcher.Constraint("DistanceX", -1, 1, 19, 3, Q("3.685 in")))
sketch3.addConstraint(Sketcher.Constraint("DistanceX", -1, 1, 20, 3, Q("2.994 in")))
sketch3.addConstraint(Sketcher.Constraint("DistanceX", -1, 1, 21, 3, Q("2.894 in")))
sketch3.addConstraint(Sketcher.Constraint("DistanceX", -1, 1, 22, 3, Q("2.794 in")))
sketch3.addConstraint(Sketcher.Constraint("DistanceX", -1, 1, 23, 3, Q("2.694 in")))
sketch3.addConstraint(Sketcher.Constraint("DistanceX", -1, 1, 24, 3, Q("2.594 in")))
sketch3.addConstraint(Sketcher.Constraint("DistanceX", -1, 1, 25, 3, Q("3.575 in")))
sketch3.addConstraint(Sketcher.Constraint("DistanceX", -1, 1, 27, 3, Q("3.245 in")))
sketch3.addConstraint(Sketcher.Constraint("DistanceX", -1, 1, 30, 3, Q("2.575 in")))
sketch3.addConstraint(Sketcher.Constraint("DistanceX", -1, 1, 32, 3, Q("2.245 in")))
sketch3.addConstraint(Sketcher.Constraint("DistanceX", -1, 1, 34, 3, Q("1.915 in")))
sketch3.addConstraint(Sketcher.Constraint("DistanceX", -1, 1, 36, 3, Q("1.5849999 in")))
sketch3.addConstraint(Sketcher.Constraint("DistanceX", -1, 1, 38, 3, Q("1.2549999 in")))
sketch3.addConstraint(Sketcher.Constraint("DistanceY", -1, 1, 42, 3, Q("1.275 in")))
sketch3.addConstraint(Sketcher.Constraint("DistanceY", -1, 1, 44, 3, Q("1.605 in")))
sketch3.addConstraint(Sketcher.Constraint("DistanceY", -1, 1, 46, 3, Q("1.935 in")))
sketch3.addConstraint(Sketcher.Constraint("DistanceY", -1, 1, 48, 3, Q("2.265 in")))
sketch3.addConstraint(Sketcher.Constraint("DistanceY", -1, 1, 50, 3, Q("2.595 in")))
sketch3.addConstraint(Sketcher.Constraint("DistanceX", -1, 1, 52, 3, Q("0.503 in")))
sketch3.addConstraint(Sketcher.Constraint("DistanceX", -1, 1, 62, 3, Q("0.216 in")))
sketch3.addConstraint(Sketcher.Constraint("DistanceY", -1, 1, 63, 3, Q("2.765 in")))
sketch3.addConstraint(Sketcher.Constraint("DistanceY", -1, 1, 10, 3, Q("1.4625 in")))
sketch3.addConstraint(Sketcher.Constraint("DistanceX", -1, 1, 12, 3, Q("136.412428 mm")))
sketch3.addConstraint(Sketcher.Constraint("DistanceX", -1, 1, 13, 3, Q("136.379139 mm")))
sketch3.addConstraint(Sketcher.Constraint("DistanceX", -1, 1, 14, 3, Q("136.34585 mm")))
sketch3.addConstraint(Sketcher.Constraint("DistanceY", -1, 1, 14, 3, Q("26.988372 mm")))
sketch3.addConstraint(Sketcher.Constraint("DistanceX", -1, 1, 39, 3, Q("21.79718 mm")))
sketch3.addConstraint(Sketcher.Constraint("DistanceX", -1, 1, 40, 3, Q("17.60618 mm")))
sketch3.addConstraint(Sketcher.Constraint("DistanceX", -1, 1, 41, 3, Q("13.41518 mm")))
sketch3.addConstraint(Sketcher.Constraint("DistanceX", -1, 1, 10, 3, Q("136.479005 mm")))
sketch3.addConstraint(Sketcher.Constraint("DistanceX", -1, 1, 11, 3, Q("136.445716 mm")))
sketch3.addConstraint(Sketcher.Constraint("DistanceY", -1, 1, 11, 3, Q("34.607718 mm")))
sketch3.addConstraint(Sketcher.Constraint("DistanceY", -1, 1, 12, 3, Q("32.067936 mm")))
sketch3.addConstraint(Sketcher.Constraint("DistanceY", -1, 1, 13, 3, Q("29.528154 mm")))
sketch3.setExpression("Constraints[125]", "Params.sketch3_diameter")
sketch3.setExpression("Constraints[126]", "Params.sketch3_diameter2")
sketch3.setExpression("Constraints[127]", "Params.sketch3_diameter3")
pocket2 = doc.addObject("PartDesign::Pocket", "Pocket001")
body.addObject(pocket2)
pocket2.Profile = sketch3
pocket2.Type = "ThroughAll"

doc.recompute()
